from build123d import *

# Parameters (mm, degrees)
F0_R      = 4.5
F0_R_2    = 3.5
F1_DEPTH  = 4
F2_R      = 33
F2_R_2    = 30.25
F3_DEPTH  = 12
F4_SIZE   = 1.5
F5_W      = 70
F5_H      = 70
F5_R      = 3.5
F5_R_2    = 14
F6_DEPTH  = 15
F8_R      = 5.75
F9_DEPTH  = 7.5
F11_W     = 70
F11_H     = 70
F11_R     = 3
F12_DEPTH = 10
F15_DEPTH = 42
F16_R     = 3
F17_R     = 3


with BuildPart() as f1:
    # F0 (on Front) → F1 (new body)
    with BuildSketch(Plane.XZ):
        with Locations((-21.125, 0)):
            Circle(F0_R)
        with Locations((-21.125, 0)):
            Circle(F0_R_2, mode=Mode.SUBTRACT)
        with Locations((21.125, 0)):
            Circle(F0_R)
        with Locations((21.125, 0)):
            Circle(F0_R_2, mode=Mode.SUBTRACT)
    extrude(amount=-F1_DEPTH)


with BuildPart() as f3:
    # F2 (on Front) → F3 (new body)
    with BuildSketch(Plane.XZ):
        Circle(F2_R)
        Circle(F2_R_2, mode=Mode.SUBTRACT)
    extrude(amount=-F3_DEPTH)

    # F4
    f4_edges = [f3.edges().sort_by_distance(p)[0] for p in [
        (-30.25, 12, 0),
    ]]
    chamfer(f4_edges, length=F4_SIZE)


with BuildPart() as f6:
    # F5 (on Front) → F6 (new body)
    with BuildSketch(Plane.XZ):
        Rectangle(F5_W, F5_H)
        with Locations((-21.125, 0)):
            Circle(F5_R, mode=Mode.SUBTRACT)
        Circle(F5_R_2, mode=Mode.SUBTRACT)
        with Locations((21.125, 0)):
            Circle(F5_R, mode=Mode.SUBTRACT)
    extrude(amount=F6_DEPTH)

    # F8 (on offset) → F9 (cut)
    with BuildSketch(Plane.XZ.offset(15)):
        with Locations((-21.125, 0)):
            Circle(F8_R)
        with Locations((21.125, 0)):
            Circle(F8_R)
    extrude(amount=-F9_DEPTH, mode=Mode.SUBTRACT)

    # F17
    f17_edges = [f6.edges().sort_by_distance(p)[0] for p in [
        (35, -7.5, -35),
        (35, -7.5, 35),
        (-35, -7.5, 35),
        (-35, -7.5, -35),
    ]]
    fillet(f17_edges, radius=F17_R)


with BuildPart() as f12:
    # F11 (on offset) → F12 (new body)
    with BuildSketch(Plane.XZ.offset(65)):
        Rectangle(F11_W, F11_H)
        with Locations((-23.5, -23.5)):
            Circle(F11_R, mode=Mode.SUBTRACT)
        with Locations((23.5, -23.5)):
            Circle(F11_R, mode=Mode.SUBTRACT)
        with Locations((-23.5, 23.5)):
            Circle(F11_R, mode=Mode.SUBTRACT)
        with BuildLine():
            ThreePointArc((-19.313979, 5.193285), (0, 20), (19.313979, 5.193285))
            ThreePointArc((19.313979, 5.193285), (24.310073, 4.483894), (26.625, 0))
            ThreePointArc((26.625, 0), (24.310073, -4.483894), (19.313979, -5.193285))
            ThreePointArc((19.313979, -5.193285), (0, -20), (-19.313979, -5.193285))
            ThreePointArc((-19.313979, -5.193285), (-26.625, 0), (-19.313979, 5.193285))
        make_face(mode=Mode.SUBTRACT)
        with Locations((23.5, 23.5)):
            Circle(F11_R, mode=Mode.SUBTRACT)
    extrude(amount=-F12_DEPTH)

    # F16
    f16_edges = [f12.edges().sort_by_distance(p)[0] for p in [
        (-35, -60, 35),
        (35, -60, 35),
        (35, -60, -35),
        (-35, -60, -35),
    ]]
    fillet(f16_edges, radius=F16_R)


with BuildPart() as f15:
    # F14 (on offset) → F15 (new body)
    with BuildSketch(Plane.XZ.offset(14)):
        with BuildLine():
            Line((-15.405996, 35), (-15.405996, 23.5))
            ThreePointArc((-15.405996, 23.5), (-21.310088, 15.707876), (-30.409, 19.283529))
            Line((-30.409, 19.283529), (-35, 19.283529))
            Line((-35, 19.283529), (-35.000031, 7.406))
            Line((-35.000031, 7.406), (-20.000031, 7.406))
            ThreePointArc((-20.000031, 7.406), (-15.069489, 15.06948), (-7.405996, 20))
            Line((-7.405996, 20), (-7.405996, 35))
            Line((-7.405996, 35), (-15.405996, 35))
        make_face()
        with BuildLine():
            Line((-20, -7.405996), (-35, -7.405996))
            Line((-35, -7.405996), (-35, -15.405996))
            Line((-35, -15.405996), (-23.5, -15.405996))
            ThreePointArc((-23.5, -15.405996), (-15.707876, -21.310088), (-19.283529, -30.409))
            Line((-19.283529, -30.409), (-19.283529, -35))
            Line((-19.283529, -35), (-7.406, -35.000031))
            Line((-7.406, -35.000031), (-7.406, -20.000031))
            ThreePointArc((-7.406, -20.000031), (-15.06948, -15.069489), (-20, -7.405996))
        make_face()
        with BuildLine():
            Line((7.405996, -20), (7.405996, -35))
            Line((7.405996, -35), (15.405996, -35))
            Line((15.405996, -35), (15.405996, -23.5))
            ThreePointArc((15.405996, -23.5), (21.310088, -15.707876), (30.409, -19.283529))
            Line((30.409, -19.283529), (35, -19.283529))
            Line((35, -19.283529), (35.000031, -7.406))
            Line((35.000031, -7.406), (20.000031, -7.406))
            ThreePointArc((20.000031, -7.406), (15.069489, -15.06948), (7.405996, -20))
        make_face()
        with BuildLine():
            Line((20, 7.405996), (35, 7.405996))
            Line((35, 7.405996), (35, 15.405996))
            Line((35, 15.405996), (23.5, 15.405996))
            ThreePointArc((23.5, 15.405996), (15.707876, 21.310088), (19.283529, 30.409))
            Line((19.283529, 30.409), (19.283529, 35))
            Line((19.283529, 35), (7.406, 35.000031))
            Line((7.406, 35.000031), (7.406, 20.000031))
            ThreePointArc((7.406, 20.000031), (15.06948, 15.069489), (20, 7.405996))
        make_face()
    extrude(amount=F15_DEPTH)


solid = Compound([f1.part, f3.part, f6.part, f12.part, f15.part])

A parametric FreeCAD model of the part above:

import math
import FreeCAD as App
import Part
import Sketcher

V = App.Vector
Q = App.Units.Quantity


def edges_at(feature, points):
    """Names of the edges that pass closest to the given points."""
    edges = feature.Shape.Edges
    near = lambda p: min(range(len(edges)), key=lambda i: edges[i].distToShape(Part.Vertex(*p))[0])
    return sorted({f"Edge{near(p) + 1}" for p in points})


def add_polygon(sketch, points):
    """Adds a closed chain of lines whose ends are joined by coincident constraints."""
    first, n = sketch.GeometryCount, len(points)
    for a, b in zip(points, points[1:] + points[:1]):
        sketch.addGeometry(Part.LineSegment(App.Vector(*a, 0), App.Vector(*b, 0)), False)
    for i in range(n):
        sketch.addConstraint(Sketcher.Constraint("Coincident", first + i, 2, first + (i + 1) % n, 1))

doc = App.newDocument("Part")
body = doc.addObject("PartDesign::Body", "Body")
body.AllowCompound = True

sketch1 = doc.addObject("Sketcher::SketchObject", "Sketch")
body.addObject(sketch1)
sketch1.AttachmentSupport = (doc.XZ_Plane, [""])
sketch1.MapMode = "FlatFace"
sketch1.addGeometry(Part.Circle(V(-21.1, 0, 0), V(0, 0, 1), 4.5), False)
sketch1.addGeometry(Part.Circle(V(-21.1, 0, 0), V(0, 0, 1), 3.5), False)
sketch1.addGeometry(Part.Circle(V(21.1, 0, 0), V(0, 0, 1), 4.5), False)
sketch1.addGeometry(Part.Circle(V(21.1, 0, 0), V(0, 0, 1), 3.5), False)
sketch1.addConstraint(Sketcher.Constraint("Coincident", 1, 3, 0, 3))
sketch1.addConstraint(Sketcher.Constraint("Coincident", 3, 3, 2, 3))
sketch1.addConstraint(Sketcher.Constraint("Equal", 0, 2))
sketch1.addConstraint(Sketcher.Constraint("Equal", 1, 3))
sketch1.addConstraint(Sketcher.Constraint("Symmetric", 0, 3, 2, 3, -1, 1))
sketch1.addConstraint(Sketcher.Constraint("PointOnObject", 0, 3, -1))
sketch1.addConstraint(Sketcher.Constraint("Diameter", 0, Q("9 mm")))
sketch1.addConstraint(Sketcher.Constraint("Diameter", 1, Q("7 mm")))
sketch1.addConstraint(Sketcher.Constraint("DistanceX", 0, 3, 2, 3, Q("42.25 mm")))
pad1 = doc.addObject("PartDesign::Pad", "Pad")
body.addObject(pad1)
pad1.Profile = sketch1
pad1.Length = 4
pad1.Reversed = True
body2 = doc.addObject("PartDesign::Body", "Body001")

sketch2 = doc.addObject("Sketcher::SketchObject", "Sketch001")
body2.addObject(sketch2)
sketch2.AttachmentSupport = (doc.getObject("XZ_Plane001"), [""])
sketch2.MapMode = "FlatFace"
sketch2.addGeometry(Part.Circle(V(0, 0, 0), V(0, 0, 1), 33), False)
sketch2.addGeometry(Part.Circle(V(0, 0, 0), V(0, 0, 1), 30), False)
sketch2.addConstraint(Sketcher.Constraint("Coincident", 0, 3, -1, 1))
sketch2.addConstraint(Sketcher.Constraint("Coincident", 1, 3, -1, 1))
sketch2.addConstraint(Sketcher.Constraint("Diameter", 0, Q("66 mm")))
sketch2.addConstraint(Sketcher.Constraint("Diameter", 1, Q("60.5 mm")))
pad2 = doc.addObject("PartDesign::Pad", "Pad001")
body2.addObject(pad2)
pad2.Profile = sketch2
pad2.Length = 12
pad2.Reversed = True
doc.recompute()

chamfer = doc.addObject("PartDesign::Chamfer", "Chamfer")
body2.addObject(chamfer)
chamfer.Base = (pad2, edges_at(pad2, [(-30.25, 12, 0)]))
chamfer.Size = 1.5
body3 = doc.addObject("PartDesign::Body", "Body002")

sketch3 = doc.addObject("Sketcher::SketchObject", "Sketch002")
body3.addObject(sketch3)
sketch3.AttachmentSupport = (doc.getObject("XZ_Plane002"), [""])
sketch3.MapMode = "FlatFace"
add_polygon(sketch3, [(-35, 35), (-35, -35), (35, -35), (35, 35)])
sketch3.addGeometry(Part.Circle(V(-21.1, 0, 0), V(0, 0, 1), 3.5), False)
sketch3.addGeometry(Part.Circle(V(0, 0, 0), V(0, 0, 1), 14), False)
sketch3.addGeometry(Part.Circle(V(21.1, 0, 0), V(0, 0, 1), 3.5), False)
sketch3.addConstraint(Sketcher.Constraint("Vertical", 0))
sketch3.addConstraint(Sketcher.Constraint("Horizontal", 1))
sketch3.addConstraint(Sketcher.Constraint("Vertical", 2))
sketch3.addConstraint(Sketcher.Constraint("Horizontal", 3))
sketch3.addConstraint(Sketcher.Constraint("Coincident", 5, 3, -1, 1))
sketch3.addConstraint(Sketcher.Constraint("Equal", 4, 6))
sketch3.addConstraint(Sketcher.Constraint("Symmetric", 4, 3, 6, 3, -1, 1))
sketch3.addConstraint(Sketcher.Constraint("Symmetric", 0, 2, 2, 2, -1, 1))
sketch3.addConstraint(Sketcher.Constraint("PointOnObject", 4, 3, -1))
sketch3.addConstraint(Sketcher.Constraint("Equal", 3, 0))
sketch3.addConstraint(Sketcher.Constraint("Diameter", 4, Q("7 mm")))
sketch3.addConstraint(Sketcher.Constraint("Diameter", 5, Q("28 mm")))
sketch3.addConstraint(Sketcher.Constraint("DistanceX", 1, 1, 1, 2, Q("70 mm")))
sketch3.addConstraint(Sketcher.Constraint("DistanceX", 4, 3, 6, 3, Q("42.25 mm")))
pad3 = doc.addObject("PartDesign::Pad", "Pad002")
body3.addObject(pad3)
pad3.Profile = sketch3
pad3.Length = 15

sketch4 = doc.addObject("Sketcher::SketchObject", "Sketch003")
body3.addObject(sketch4)
sketch4.AttachmentSupport = (doc.getObject("XZ_Plane002"), [""])
sketch4.MapMode = "FlatFace"
sketch4.AttachmentOffset = App.Placement(V(0, 0, 15), App.Rotation())
sketch4.addGeometry(Part.Circle(V(-21, 0, 0), V(0, 0, 1), 6), False)
sketch4.addGeometry(Part.Circle(V(21, 0, 0), V(0, 0, 1), 6), False)
sketch4.addConstraint(Sketcher.Constraint("Equal", 0, 1))
sketch4.addConstraint(Sketcher.Constraint("Symmetric", 0, 3, 1, 3, -1, 1))
sketch4.addConstraint(Sketcher.Constraint("PointOnObject", 0, 3, -1))
sketch4.addConstraint(Sketcher.Constraint("Diameter", 0, Q("11.5 mm")))
sketch4.addConstraint(Sketcher.Constraint("DistanceX", 0, 3, 1, 3, Q("42.25 mm")))
pocket1 = doc.addObject("PartDesign::Pocket", "Pocket")
body3.addObject(pocket1)
pocket1.Profile = sketch4
pocket1.Length = 7.5
doc.recompute()

fillet = doc.addObject("PartDesign::Fillet", "Fillet")
body3.addObject(fillet)
fillet.Base = (pocket1, edges_at(pocket1, [
    (35, -7.5, -35),
    (35, -7.5, 35),
    (-35, -7.5, 35),
    (-35, -7.5, -35),
]))
fillet.Radius = 3
body4 = doc.addObject("PartDesign::Body", "Body003")

sketch5 = doc.addObject("Sketcher::SketchObject", "Sketch004")
body4.addObject(sketch5)
sketch5.AttachmentSupport = (doc.getObject("XZ_Plane003"), [""])
sketch5.MapMode = "FlatFace"
sketch5.AttachmentOffset = App.Placement(V(0, 0, 65), App.Rotation())
add_polygon(sketch5, [(-35, 35), (-35, -35), (35, -35), (35, 35)])
sketch5.addGeometry(Part.Circle(V(-23.5, -23.5, 0), V(0, 0, 1), 3), False)
sketch5.addGeometry(Part.Circle(V(23.5, -23.5, 0), V(0, 0, 1), 3), False)
sketch5.addGeometry(Part.Circle(V(-23.5, 23.5, 0), V(0, 0, 1), 3), False)
sketch5.addGeometry(Part.ArcOfCircle(Part.Circle(V(-21.1, 0, 0), V(0, 0, 1), 5.5), math.radians(71), math.radians(289)), False)
sketch5.addGeometry(Part.ArcOfCircle(Part.Circle(V(0, 0, 0), V(0, 0, 1), 20), math.radians(15), math.radians(165)), False)
sketch5.addGeometry(Part.ArcOfCircle(Part.Circle(V(21.1, 0, 0), V(0, 0, 1), 5.5), math.radians(0), math.radians(109)), False)
sketch5.addGeometry(Part.ArcOfCircle(Part.Circle(V(21.1, 0, 0), V(0, 0, 1), 5.5), math.radians(-109), math.radians(0)), False)
sketch5.addGeometry(Part.ArcOfCircle(Part.Circle(V(0, 0, 0), V(0, 0, 1), 20), math.radians(-165), math.radians(-15)), False)
sketch5.addGeometry(Part.Circle(V(23.5, 23.5, 0), V(0, 0, 1), 3), False)
sketch5.addConstraint(Sketcher.Constraint("Coincident", 7, 1, 8, 2))
sketch5.addConstraint(Sketcher.Constraint("Coincident", 8, 1, 9, 2))
sketch5.addConstraint(Sketcher.Constraint("Tangent", 9, 1, 10, 2))
sketch5.addConstraint(Sketcher.Constraint("Coincident", 10, 1, 11, 2))
sketch5.addConstraint(Sketcher.Constraint("Coincident", 11, 1, 7, 2))
sketch5.addConstraint(Sketcher.Constraint("Vertical", 0))
sketch5.addConstraint(Sketcher.Constraint("Horizontal", 1))
sketch5.addConstraint(Sketcher.Constraint("Vertical", 2))
sketch5.addConstraint(Sketcher.Constraint("Horizontal", 3))
sketch5.addConstraint(Sketcher.Constraint("Coincident", 8, 3, -1, 1))
sketch5.addConstraint(Sketcher.Constraint("Coincident", 11, 3, -1, 1))
sketch5.addConstraint(Sketcher.Constraint("Equal", 4, 5))
sketch5.addConstraint(Sketcher.Constraint("Equal", 5, 6))
sketch5.addConstraint(Sketcher.Constraint("Equal", 7, 9))
sketch5.addConstraint(Sketcher.Constraint("Equal", 9, 10))
sketch5.addConstraint(Sketcher.Constraint("Equal", 8, 11))
sketch5.addConstraint(Sketcher.Constraint("Equal", 6, 12))
sketch5.addConstraint(Sketcher.Constraint("Symmetric", 5, 3, 6, 3, -1, 1))
sketch5.addConstraint(Sketcher.Constraint("Symmetric", 7, 3, 9, 3, -1, 1))
sketch5.addConstraint(Sketcher.Constraint("Symmetric", 4, 3, 12, 3, -1, 1))
sketch5.addConstraint(Sketcher.Constraint("Symmetric", 0, 2, 2, 2, -1, 1))
sketch5.addConstraint(Sketcher.Constraint("Symmetric", 4, 3, 5, 3, -2))
sketch5.addConstraint(Sketcher.Constraint("PointOnObject", 7, 3, -1))
sketch5.addConstraint(Sketcher.Constraint("PointOnObject", 9, 1, -1))
sketch5.addConstraint(Sketcher.Constraint("Equal", 3, 0))
sketch5.addConstraint(Sketcher.Constraint("Diameter", 4, Q("6 mm")))
sketch5.addConstraint(Sketcher.Constraint("Radius", 8, Q("20 mm")))
sketch5.addConstraint(Sketcher.Constraint("Radius", 7, Q("5.5 mm")))
sketch5.addConstraint(Sketcher.Constraint("DistanceX", 1, 1, 1, 2, Q("70 mm")))
sketch5.addConstraint(Sketcher.Constraint("DistanceX", 4, 3, 5, 3, Q("47 mm")))
sketch5.addConstraint(Sketcher.Constraint("DistanceY", 4, 3, 6, 3, Q("47 mm")))
sketch5.addConstraint(Sketcher.Constraint("DistanceX", 7, 3, 9, 3, Q("42.249998 mm")))
pad4 = doc.addObject("PartDesign::Pad", "Pad003")
body4.addObject(pad4)
pad4.Profile = sketch5
pad4.Length = 10
pad4.Reversed = True
doc.recompute()

fillet2 = doc.addObject("PartDesign::Fillet", "Fillet001")
body4.addObject(fillet2)
fillet2.Base = (pad4, edges_at(pad4, [
    (-35, -60, 35),
    (35, -60, 35),
    (35, -60, -35),
    (-35, -60, -35),
]))
fillet2.Radius = 3
body5 = doc.addObject("PartDesign::Body", "Body004")
body5.AllowCompound = True

sketch6 = doc.addObject("Sketcher::SketchObject", "Sketch005")
body5.addObject(sketch6)
sketch6.AttachmentSupport = (doc.getObject("XZ_Plane004"), [""])
sketch6.MapMode = "FlatFace"
sketch6.AttachmentOffset = App.Placement(V(0, 0, 14), App.Rotation())
sketch6.addGeometry(Part.LineSegment(V(-15.4, 35, 0), V(-15.4, 23.5, 0)), False)
sketch6.addGeometry(Part.ArcOfCircle(Part.Circle(V(-23.5, 23.5, 0), V(0, 0, 1), 8.1), math.radians(-149), math.radians(0)), False)
sketch6.addGeometry(Part.LineSegment(V(-30.4, 19.3, 0), V(-35, 19.3, 0)), False)
sketch6.addGeometry(Part.LineSegment(V(-35, 19.3, 0), V(-35, 7.4, 0)), False)
sketch6.addGeometry(Part.LineSegment(V(-35, 7.4, 0), V(-20, 7.4, 0)), False)
sketch6.addGeometry(Part.ArcOfCircle(Part.Circle(V(0.1, -0.1, 0), V(0, 0, 1), 21.5), math.radians(111), math.radians(159)), False)
sketch6.addGeometry(Part.LineSegment(V(-7.4, 20, 0), V(-7.4, 35, 0)), False)
sketch6.addGeometry(Part.LineSegment(V(-7.4, 35, 0), V(-15.4, 35, 0)), False)
sketch6.addGeometry(Part.LineSegment(V(-20, -7.4, 0), V(-35, -7.4, 0)), False)
sketch6.addGeometry(Part.LineSegment(V(-35, -7.4, 0), V(-35, -15.4, 0)), False)
sketch6.addGeometry(Part.LineSegment(V(-35, -15.4, 0), V(-23.5, -15.4, 0)), False)
sketch6.addGeometry(Part.ArcOfCircle(Part.Circle(V(-23.5, -23.5, 0), V(0, 0, 1), 8.1), math.radians(-59), math.radians(90)), False)
sketch6.addGeometry(Part.LineSegment(V(-19.3, -30.4, 0), V(-19.3, -35, 0)), False)
sketch6.addGeometry(Part.LineSegment(V(-19.3, -35, 0), V(-7.4, -35, 0)), False)
sketch6.addGeometry(Part.LineSegment(V(-7.4, -35, 0), V(-7.4, -20, 0)), False)
sketch6.addGeometry(Part.ArcOfCircle(Part.Circle(V(0.1, 0.1, 0), V(0, 0, 1), 21.5), math.radians(-159), math.radians(-111)), False)
sketch6.addGeometry(Part.LineSegment(V(7.4, -20, 0), V(7.4, -35, 0)), False)
sketch6.addGeometry(Part.LineSegment(V(7.4, -35, 0), V(15.4, -35, 0)), False)
sketch6.addGeometry(Part.LineSegment(V(15.4, -35, 0), V(15.4, -23.5, 0)), False)
sketch6.addGeometry(Part.ArcOfCircle(Part.Circle(V(23.5, -23.5, 0), V(0, 0, 1), 8.1), math.radians(31), math.radians(180)), False)
sketch6.addGeometry(Part.LineSegment(V(30.4, -19.3, 0), V(35, -19.3, 0)), False)
sketch6.addGeometry(Part.LineSegment(V(35, -19.3, 0), V(35, -7.4, 0)), False)
sketch6.addGeometry(Part.LineSegment(V(35, -7.4, 0), V(20, -7.4, 0)), False)
sketch6.addGeometry(Part.ArcOfCircle(Part.Circle(V(-0.1, 0.1, 0), V(0, 0, 1), 21.5), math.radians(-69), math.radians(-21)), False)
sketch6.addGeometry(Part.LineSegment(V(20, 7.4, 0), V(35, 7.4, 0)), False)
sketch6.addGeometry(Part.LineSegment(V(35, 7.4, 0), V(35, 15.4, 0)), False)
sketch6.addGeometry(Part.LineSegment(V(35, 15.4, 0), V(23.5, 15.4, 0)), False)
sketch6.addGeometry(Part.ArcOfCircle(Part.Circle(V(23.5, 23.5, 0), V(0, 0, 1), 8.1), math.radians(121), math.radians(270)), False)
sketch6.addGeometry(Part.LineSegment(V(19.3, 30.4, 0), V(19.3, 35, 0)), False)
sketch6.addGeometry(Part.LineSegment(V(19.3, 35, 0), V(7.4, 35, 0)), False)
sketch6.addGeometry(Part.LineSegment(V(7.4, 35, 0), V(7.4, 20, 0)), False)
sketch6.addGeometry(Part.ArcOfCircle(Part.Circle(V(-0.1, -0.1, 0), V(0, 0, 1), 21.5), math.radians(21), math.radians(69)), False)
sketch6.addConstraint(Sketcher.Constraint("Tangent", 0, 2, 1, 2))
sketch6.addConstraint(Sketcher.Constraint("Coincident", 1, 1, 2, 1))
sketch6.addConstraint(Sketcher.Constraint("Coincident", 2, 2, 3, 1))
sketch6.addConstraint(Sketcher.Constraint("Coincident", 3, 2, 4, 1))
sketch6.addConstraint(Sketcher.Constraint("Coincident", 4, 2, 5, 2))
sketch6.addConstraint(Sketcher.Constraint("Coincident", 5, 1, 6, 1))
sketch6.addConstraint(Sketcher.Constraint("Coincident", 6, 2, 7, 1))
sketch6.addConstraint(Sketcher.Constraint("Coincident", 7, 2, 0, 1))
sketch6.addConstraint(Sketcher.Constraint("Coincident", 8, 2, 9, 1))
sketch6.addConstraint(Sketcher.Constraint("Coincident", 9, 2, 10, 1))
sketch6.addConstraint(Sketcher.Constraint("Tangent", 10, 2, 11, 2))
sketch6.addConstraint(Sketcher.Constraint("Coincident", 11, 1, 12, 1))
sketch6.addConstraint(Sketcher.Constraint("Coincident", 12, 2, 13, 1))
sketch6.addConstraint(Sketcher.Constraint("Coincident", 13, 2, 14, 1))
sketch6.addConstraint(Sketcher.Constraint("Coincident", 14, 2, 15, 2))
sketch6.addConstraint(Sketcher.Constraint("Coincident", 15, 1, 8, 1))
sketch6.addConstraint(Sketcher.Constraint("Coincident", 16, 2, 17, 1))
sketch6.addConstraint(Sketcher.Constraint("Coincident", 17, 2, 18, 1))
sketch6.addConstraint(Sketcher.Constraint("Tangent", 18, 2, 19, 2))
sketch6.addConstraint(Sketcher.Constraint("Coincident", 19, 1, 20, 1))
sketch6.addConstraint(Sketcher.Constraint("Coincident", 20, 2, 21, 1))
sketch6.addConstraint(Sketcher.Constraint("Coincident", 21, 2, 22, 1))
sketch6.addConstraint(Sketcher.Constraint("Coincident", 22, 2, 23, 2))
sketch6.addConstraint(Sketcher.Constraint("Coincident", 23, 1, 16, 1))
sketch6.addConstraint(Sketcher.Constraint("Coincident", 24, 2, 25, 1))
sketch6.addConstraint(Sketcher.Constraint("Coincident", 25, 2, 26, 1))
sketch6.addConstraint(Sketcher.Constraint("Tangent", 26, 2, 27, 2))
sketch6.addConstraint(Sketcher.Constraint("Coincident", 27, 1, 28, 1))
sketch6.addConstraint(Sketcher.Constraint("Coincident", 28, 2, 29, 1))
sketch6.addConstraint(Sketcher.Constraint("Coincident", 29, 2, 30, 1))
sketch6.addConstraint(Sketcher.Constraint("Coincident", 30, 2, 31, 2))
sketch6.addConstraint(Sketcher.Constraint("Coincident", 31, 1, 24, 1))
sketch6.addConstraint(Sketcher.Constraint("Vertical", 0))
sketch6.addConstraint(Sketcher.Constraint("Horizontal", 2))
sketch6.addConstraint(Sketcher.Constraint("Horizontal", 4))
sketch6.addConstraint(Sketcher.Constraint("Vertical", 6))
sketch6.addConstraint(Sketcher.Constraint("Horizontal", 7))
sketch6.addConstraint(Sketcher.Constraint("Horizontal", 8))
sketch6.addConstraint(Sketcher.Constraint("Vertical", 9))
sketch6.addConstraint(Sketcher.Constraint("Horizontal", 10))
sketch6.addConstraint(Sketcher.Constraint("Vertical", 12))
sketch6.addConstraint(Sketcher.Constraint("Vertical", 14))
sketch6.addConstraint(Sketcher.Constraint("Vertical", 16))
sketch6.addConstraint(Sketcher.Constraint("Horizontal", 17))
sketch6.addConstraint(Sketcher.Constraint("Vertical", 18))
sketch6.addConstraint(Sketcher.Constraint("Horizontal", 20))
sketch6.addConstraint(Sketcher.Constraint("Horizontal", 22))
sketch6.addConstraint(Sketcher.Constraint("Horizontal", 24))
sketch6.addConstraint(Sketcher.Constraint("Vertical", 25))
sketch6.addConstraint(Sketcher.Constraint("Horizontal", 26))
sketch6.addConstraint(Sketcher.Constraint("Vertical", 28))
sketch6.addConstraint(Sketcher.Constraint("Vertical", 30))
sketch6.addConstraint(Sketcher.Constraint("Equal", 1, 11))
sketch6.addConstraint(Sketcher.Constraint("Equal", 5, 15))
sketch6.addConstraint(Sketcher.Constraint("Equal", 11, 19))
sketch6.addConstraint(Sketcher.Constraint("Equal", 15, 23))
sketch6.addConstraint(Sketcher.Constraint("Equal", 19, 27))
sketch6.addConstraint(Sketcher.Constraint("Equal", 23, 31))
sketch6.addConstraint(Sketcher.Constraint("Symmetric", 1, 3, 19, 3, -1, 1))
sketch6.addConstraint(Sketcher.Constraint("Symmetric", 5, 3, 23, 3, -1, 1))
sketch6.addConstraint(Sketcher.Constraint("Symmetric", 11, 3, 27, 3, -1, 1))
sketch6.addConstraint(Sketcher.Constraint("Symmetric", 15, 3, 31, 3, -1, 1))
sketch6.addConstraint(Sketcher.Constraint("Symmetric", 6, 2, 16, 2, -1, 1))
sketch6.addConstraint(Sketcher.Constraint("Symmetric", 2, 2, 20, 2, -1, 1))
sketch6.addConstraint(Sketcher.Constraint("Symmetric", 3, 2, 21, 2, -1, 1))
sketch6.addConstraint(Sketcher.Constraint("Symmetric", 8, 2, 24, 2, -1, 1))
sketch6.addConstraint(Sketcher.Constraint("Symmetric", 12, 2, 28, 2, -1, 1))
sketch6.addConstraint(Sketcher.Constraint("Symmetric", 13, 2, 29, 2, -1, 1))
sketch6.addConstraint(Sketcher.Constraint("Symmetric", 11, 3, 19, 3, -2))
sketch6.addConstraint(Sketcher.Constraint("Perpendicular", 3, 13))
sketch6.addConstraint(Sketcher.Constraint("Horizontal", 12, 2, 16, 2))
sketch6.addConstraint(Sketcher.Constraint("Vertical", 2, 2, 8, 2))
sketch6.addConstraint(Sketcher.Constraint("Equal", 4, 8))
sketch6.addConstraint(Sketcher.Constraint("Equal", 26, 0))
sketch6.addConstraint(Sketcher.Constraint("Equal", 24, 6))
sketch6.addConstraint(Sketcher.Constraint("Equal", 17, 9))
sketch6.addConstraint(Sketcher.Constraint("Equal", 20, 12))
sketch6.addConstraint(Sketcher.Constraint("Equal", 6, 14))
sketch6.addConstraint(Sketcher.Constraint("Equal", 3, 13))
sketch6.addConstraint(Sketcher.Constraint("DistanceX", 4, 1, 4, 2, Q("15 mm")))
sketch6.addConstraint(Sketcher.Constraint("DistanceX", 7, 2, 7, 1, Q("8 mm")))
sketch6.addConstraint(Sketcher.Constraint("DistanceX", 10, 1, 10, 2, Q("11.5 mm")))
sketch6.addConstraint(Sketcher.Constraint("DistanceX", 2, 2, -1, 1, Q("35 mm")))
sketch6.addConstraint(Sketcher.Constraint("DistanceY", -1, 1, 5, 1, Q("20 mm")))
sketch6.addConstraint(Sketcher.Constraint("Radius", 5, Q("21.485002 mm")))
sketch6.addConstraint(Sketcher.Constraint("DistanceX", 2, 2, 2, 1, Q("4.591 mm")))
sketch6.addConstraint(Sketcher.Constraint("DistanceY", -1, 1, 3, 2, Q("7.406 mm")))
sketch6.addConstraint(Sketcher.Constraint("Radius", 1, Q("8.094004 mm")))
sketch6.addConstraint(Sketcher.Constraint("DistanceX", -1, 1, 5, 3, Q("0.12268 mm")))
pad5 = doc.addObject("PartDesign::Pad", "Pad004")
body5.addObject(pad5)
pad5.Profile = sketch6
pad5.Length = 42

doc.recompute()
